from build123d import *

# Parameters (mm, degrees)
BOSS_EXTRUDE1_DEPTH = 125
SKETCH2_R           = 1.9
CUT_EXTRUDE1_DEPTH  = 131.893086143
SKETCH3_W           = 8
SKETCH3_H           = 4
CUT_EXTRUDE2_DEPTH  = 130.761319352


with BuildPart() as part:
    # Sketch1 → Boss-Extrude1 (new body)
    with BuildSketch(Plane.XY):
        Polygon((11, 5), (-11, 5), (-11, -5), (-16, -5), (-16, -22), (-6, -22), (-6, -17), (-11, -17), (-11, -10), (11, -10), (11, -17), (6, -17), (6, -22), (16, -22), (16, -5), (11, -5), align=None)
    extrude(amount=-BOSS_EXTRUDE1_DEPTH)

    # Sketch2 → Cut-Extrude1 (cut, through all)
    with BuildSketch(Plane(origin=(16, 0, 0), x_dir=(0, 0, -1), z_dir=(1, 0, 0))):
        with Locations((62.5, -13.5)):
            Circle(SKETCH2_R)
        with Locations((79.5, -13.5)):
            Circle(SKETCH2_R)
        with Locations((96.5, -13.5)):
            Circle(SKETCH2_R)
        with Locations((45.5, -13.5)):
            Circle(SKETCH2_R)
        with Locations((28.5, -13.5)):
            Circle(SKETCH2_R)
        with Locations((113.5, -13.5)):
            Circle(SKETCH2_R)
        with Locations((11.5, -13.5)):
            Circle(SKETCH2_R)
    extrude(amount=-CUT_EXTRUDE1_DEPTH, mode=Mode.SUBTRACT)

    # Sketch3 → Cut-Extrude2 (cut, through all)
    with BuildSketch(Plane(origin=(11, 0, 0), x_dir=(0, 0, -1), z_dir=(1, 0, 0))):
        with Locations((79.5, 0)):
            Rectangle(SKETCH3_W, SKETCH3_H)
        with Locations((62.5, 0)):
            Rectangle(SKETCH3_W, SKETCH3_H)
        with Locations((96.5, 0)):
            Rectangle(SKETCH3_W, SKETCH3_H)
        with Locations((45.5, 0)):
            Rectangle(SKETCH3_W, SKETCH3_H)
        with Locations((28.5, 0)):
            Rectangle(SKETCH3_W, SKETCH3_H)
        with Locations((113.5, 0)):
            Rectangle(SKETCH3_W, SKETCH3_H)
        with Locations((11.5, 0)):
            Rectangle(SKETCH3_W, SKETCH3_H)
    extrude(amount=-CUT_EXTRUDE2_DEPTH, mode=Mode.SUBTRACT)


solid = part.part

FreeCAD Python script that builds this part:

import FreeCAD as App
import Part
import Sketcher
Q = App.Units.Quantity

doc = App.newDocument("Part")
body = doc.addObject("PartDesign::Body", "Body")

# Sketch on XY plane
sketch1 = body.newObject("Sketcher::SketchObject", "Sketch")
sketch1.AttachmentSupport = (doc.getObject("XY_Plane"), [""])
sketch1.MapMode = "FlatFace"
sketch1.addGeometry([
    Part.LineSegment(App.Vector(11, 5, 0), App.Vector(-11, 5, 0)),  # 0
    Part.LineSegment(App.Vector(-11, 5, 0), App.Vector(-11, -5, 0)),  # 1
    Part.LineSegment(App.Vector(-11, -5, 0), App.Vector(-16, -5, 0)),  # 2
    Part.LineSegment(App.Vector(-16, -5, 0), App.Vector(-16, -22, 0)),  # 3
    Part.LineSegment(App.Vector(-16, -22, 0), App.Vector(-6, -22, 0)),  # 4
    Part.LineSegment(App.Vector(-6, -22, 0), App.Vector(-6, -17, 0)),  # 5
    Part.LineSegment(App.Vector(-6, -17, 0), App.Vector(-11, -17, 0)),  # 6
    Part.LineSegment(App.Vector(-11, -17, 0), App.Vector(-11, -10, 0)),  # 7
    Part.LineSegment(App.Vector(-11, -10, 0), App.Vector(11, -10, 0)),  # 8
    Part.LineSegment(App.Vector(11, -10, 0), App.Vector(11, -17, 0)),  # 9
    Part.LineSegment(App.Vector(11, -17, 0), App.Vector(6, -17, 0)),  # 10
    Part.LineSegment(App.Vector(6, -17, 0), App.Vector(6, -22, 0)),  # 11
    Part.LineSegment(App.Vector(6, -22, 0), App.Vector(16, -22, 0)),  # 12
    Part.LineSegment(App.Vector(16, -22, 0), App.Vector(16, -5, 0)),  # 13
    Part.LineSegment(App.Vector(16, -5, 0), App.Vector(11, -5, 0)),  # 14
    Part.LineSegment(App.Vector(11, -5, 0), App.Vector(11, 5, 0)),  # 15
], False)
sketch1.addConstraint([
    Sketcher.Constraint("Coincident", 0, 2, 1, 1),
    Sketcher.Constraint("Coincident", 1, 2, 2, 1),
    Sketcher.Constraint("Coincident", 2, 2, 3, 1),
    Sketcher.Constraint("Coincident", 3, 2, 4, 1),
    Sketcher.Constraint("Coincident", 4, 2, 5, 1),
    Sketcher.Constraint("Coincident", 5, 2, 6, 1),
    Sketcher.Constraint("Coincident", 6, 2, 7, 1),
    Sketcher.Constraint("Coincident", 7, 2, 8, 1),
    Sketcher.Constraint("Coincident", 8, 2, 9, 1),
    Sketcher.Constraint("Coincident", 9, 2, 10, 1),
    Sketcher.Constraint("Coincident", 10, 2, 11, 1),
    Sketcher.Constraint("Coincident", 11, 2, 12, 1),
    Sketcher.Constraint("Coincident", 12, 2, 13, 1),
    Sketcher.Constraint("Coincident", 13, 2, 14, 1),
    Sketcher.Constraint("Coincident", 14, 2, 15, 1),
    Sketcher.Constraint("Coincident", 15, 2, 0, 1),
    Sketcher.Constraint("Horizontal", 0),
    Sketcher.Constraint("Vertical", 1),
    Sketcher.Constraint("Horizontal", 2),
    Sketcher.Constraint("Vertical", 3),
    Sketcher.Constraint("Horizontal", 4),
    Sketcher.Constraint("Vertical", 5),
    Sketcher.Constraint("Horizontal", 6),
    Sketcher.Constraint("Vertical", 7),
    Sketcher.Constraint("Horizontal", 8),
    Sketcher.Constraint("Vertical", 9),
    Sketcher.Constraint("Horizontal", 10),
    Sketcher.Constraint("Vertical", 11),
    Sketcher.Constraint("Horizontal", 12),
    Sketcher.Constraint("Vertical", 13),
    Sketcher.Constraint("Horizontal", 14),
    Sketcher.Constraint("Vertical", 15),
    Sketcher.Constraint("Symmetric", 0, 2, 14, 2, -1, 1),
    Sketcher.Constraint("Symmetric", 6, 2, 9, 2, -2),
    Sketcher.Constraint("Symmetric", 4, 2, 11, 2, -2),
    Sketcher.Constraint("Symmetric", 2, 2, 13, 2, -2),
    Sketcher.Constraint("Vertical", 1, 2, 6, 2),
    Sketcher.Constraint("Equal", 2, 6),
    Sketcher.Constraint("Equal", 12, 1),
    Sketcher.Constraint("Equal", 14, 5),
    Sketcher.Constraint("DistanceX", 0, 2, 0, 1, Q("22 mm")),
    Sketcher.Constraint("DistanceX", 2, 2, 2, 1, Q("5 mm")),
    Sketcher.Constraint("DistanceY", 3, 2, 3, 1, Q("17 mm")),
    Sketcher.Constraint("DistanceY", 7, 1, 7, 2, Q("7 mm")),
])
pad1 = body.newObject("PartDesign::Pad", "Pad")
pad1.Profile = sketch1
pad1.Length = 125
pad1.Reversed = True

# Sketch on YZ plane
sketch2 = body.newObject("Sketcher::SketchObject", "Sketch001")
sketch2.AttachmentSupport = (doc.getObject("YZ_Plane"), [""])
sketch2.MapMode = "FlatFace"
sketch2.AttachmentOffset = App.Placement(App.Vector(0, 0, 16), App.Rotation())
sketch2.addGeometry([
    Part.Circle(App.Vector(-13.5, -62.5, 0), App.Vector(0, 0, 1), 1.9),  # 0
    Part.Circle(App.Vector(-13.5, -79.5, 0), App.Vector(0, 0, 1), 1.9),  # 1
    Part.Circle(App.Vector(-13.5, -96.5, 0), App.Vector(0, 0, 1), 1.9),  # 2
    Part.Circle(App.Vector(-13.5, -45.5, 0), App.Vector(0, 0, 1), 1.9),  # 3
    Part.Circle(App.Vector(-13.5, -28.5, 0), App.Vector(0, 0, 1), 1.9),  # 4
    Part.Circle(App.Vector(-13.5, -113.5, 0), App.Vector(0, 0, 1), 1.9),  # 5
    Part.Circle(App.Vector(-13.5, -11.5, 0), App.Vector(0, 0, 1), 1.9),  # 6
], False)
sketch2.addConstraint([
    Sketcher.Constraint("Equal", 0, 1),
    Sketcher.Constraint("Equal", 1, 2),
    Sketcher.Constraint("Equal", 2, 3),
    Sketcher.Constraint("Equal", 3, 4),
    Sketcher.Constraint("Equal", 4, 5),
    Sketcher.Constraint("Equal", 5, 6),
    Sketcher.Constraint("Vertical", 0, 3, 1, 3),
    Sketcher.Constraint("Vertical", 1, 3, 2, 3),
    Sketcher.Constraint("Vertical", 2, 3, 3, 3),
    Sketcher.Constraint("Vertical", 3, 3, 4, 3),
    Sketcher.Constraint("Vertical", 4, 3, 5, 3),
    Sketcher.Constraint("Vertical", 5, 3, 6, 3),
    Sketcher.Constraint("Diameter", 0, Q("3.8 mm")),
    Sketcher.Constraint("DistanceY", 1, 3, 0, 3, Q("17 mm")),
    Sketcher.Constraint("DistanceY", 2, 3, 1, 3, Q("17 mm")),
    Sketcher.Constraint("DistanceY", 0, 3, 3, 3, Q("17 mm")),
    Sketcher.Constraint("DistanceY", 3, 3, 4, 3, Q("17 mm")),
    Sketcher.Constraint("DistanceY", 5, 3, 2, 3, Q("17 mm")),
    Sketcher.Constraint("DistanceY", 4, 3, 6, 3, Q("17 mm")),
    Sketcher.Constraint("DistanceX", 0, 3, -1, 1, Q("13.5 mm")),
    Sketcher.Constraint("DistanceY", 0, 3, -1, 1, Q("62.5 mm")),
])
pocket1 = body.newObject("PartDesign::Pocket", "Pocket")
pocket1.Profile = sketch2
pocket1.Type = "ThroughAll"

# Sketch on YZ plane
sketch3 = body.newObject("Sketcher::SketchObject", "Sketch002")
sketch3.AttachmentSupport = (doc.getObject("YZ_Plane"), [""])
sketch3.MapMode = "FlatFace"
sketch3.AttachmentOffset = App.Placement(App.Vector(0, 0, 11), App.Rotation())
sketch3.addGeometry([
    Part.LineSegment(App.Vector(2, -75.5, 0), App.Vector(-2, -75.5, 0)),  # 0
    Part.LineSegment(App.Vector(-2, -75.5, 0), App.Vector(-2, -83.5, 0)),  # 1
    Part.LineSegment(App.Vector(-2, -83.5, 0), App.Vector(2, -83.5, 0)),  # 2
    Part.LineSegment(App.Vector(2, -83.5, 0), App.Vector(2, -75.5, 0)),  # 3
    Part.LineSegment(App.Vector(2, -58.5, 0), App.Vector(-2, -58.5, 0)),  # 4
    Part.LineSegment(App.Vector(-2, -58.5, 0), App.Vector(-2, -66.5, 0)),  # 5
    Part.LineSegment(App.Vector(-2, -66.5, 0), App.Vector(2, -66.5, 0)),  # 6
    Part.LineSegment(App.Vector(2, -66.5, 0), App.Vector(2, -58.5, 0)),  # 7
    Part.LineSegment(App.Vector(2, -92.5, 0), App.Vector(-2, -92.5, 0)),  # 8
    Part.LineSegment(App.Vector(-2, -92.5, 0), App.Vector(-2, -100.5, 0)),  # 9
    Part.LineSegment(App.Vector(-2, -100.5, 0), App.Vector(2, -100.5, 0)),  # 10
    Part.LineSegment(App.Vector(2, -100.5, 0), App.Vector(2, -92.5, 0)),  # 11
    Part.LineSegment(App.Vector(2, -41.5, 0), App.Vector(-2, -41.5, 0)),  # 12
    Part.LineSegment(App.Vector(-2, -41.5, 0), App.Vector(-2, -49.5, 0)),  # 13
    Part.LineSegment(App.Vector(-2, -49.5, 0), App.Vector(2, -49.5, 0)),  # 14
    Part.LineSegment(App.Vector(2, -49.5, 0), App.Vector(2, -41.5, 0)),  # 15
    Part.LineSegment(App.Vector(2, -24.5, 0), App.Vector(-2, -24.5, 0)),  # 16
    Part.LineSegment(App.Vector(-2, -24.5, 0), App.Vector(-2, -32.5, 0)),  # 17
    Part.LineSegment(App.Vector(-2, -32.5, 0), App.Vector(2, -32.5, 0)),  # 18
    Part.LineSegment(App.Vector(2, -32.5, 0), App.Vector(2, -24.5, 0)),  # 19
    Part.LineSegment(App.Vector(2, -109.5, 0), App.Vector(-2, -109.5, 0)),  # 20
    Part.LineSegment(App.Vector(-2, -109.5, 0), App.Vector(-2, -117.5, 0)),  # 21
    Part.LineSegment(App.Vector(-2, -117.5, 0), App.Vector(2, -117.5, 0)),  # 22
    Part.LineSegment(App.Vector(2, -117.5, 0), App.Vector(2, -109.5, 0)),  # 23
    Part.LineSegment(App.Vector(2, -7.5, 0), App.Vector(-2, -7.5, 0)),  # 24
    Part.LineSegment(App.Vector(-2, -7.5, 0), App.Vector(-2, -15.5, 0)),  # 25
    Part.LineSegment(App.Vector(-2, -15.5, 0), App.Vector(2, -15.5, 0)),  # 26
    Part.LineSegment(App.Vector(2, -15.5, 0), App.Vector(2, -7.5, 0)),  # 27
], False)
sketch3.addConstraint([
    Sketcher.Constraint("Coincident", 0, 2, 1, 1),
    Sketcher.Constraint("Coincident", 1, 2, 2, 1),
    Sketcher.Constraint("Coincident", 2, 2, 3, 1),
    Sketcher.Constraint("Coincident", 3, 2, 0, 1),
    Sketcher.Constraint("Coincident", 4, 2, 5, 1),
    Sketcher.Constraint("Coincident", 5, 2, 6, 1),
    Sketcher.Constraint("Coincident", 6, 2, 7, 1),
    Sketcher.Constraint("Coincident", 7, 2, 4, 1),
    Sketcher.Constraint("Coincident", 8, 2, 9, 1),
    Sketcher.Constraint("Coincident", 9, 2, 10, 1),
    Sketcher.Constraint("Coincident", 10, 2, 11, 1),
    Sketcher.Constraint("Coincident", 11, 2, 8, 1),
    Sketcher.Constraint("Coincident", 12, 2, 13, 1),
    Sketcher.Constraint("Coincident", 13, 2, 14, 1),
    Sketcher.Constraint("Coincident", 14, 2, 15, 1),
    Sketcher.Constraint("Coincident", 15, 2, 12, 1),
    Sketcher.Constraint("Coincident", 16, 2, 17, 1),
    Sketcher.Constraint("Coincident", 17, 2, 18, 1),
    Sketcher.Constraint("Coincident", 18, 2, 19, 1),
    Sketcher.Constraint("Coincident", 19, 2, 16, 1),
    Sketcher.Constraint("Coincident", 20, 2, 21, 1),
    Sketcher.Constraint("Coincident", 21, 2, 22, 1),
    Sketcher.Constraint("Coincident", 22, 2, 23, 1),
    Sketcher.Constraint("Coincident", 23, 2, 20, 1),
    Sketcher.Constraint("Coincident", 24, 2, 25, 1),
    Sketcher.Constraint("Coincident", 25, 2, 26, 1),
    Sketcher.Constraint("Coincident", 26, 2, 27, 1),
    Sketcher.Constraint("Coincident", 27, 2, 24, 1),
    Sketcher.Constraint("Horizontal", 0),
    Sketcher.Constraint("Vertical", 1),
    Sketcher.Constraint("Horizontal", 2),
    Sketcher.Constraint("Vertical", 3),
    Sketcher.Constraint("Horizontal", 4),
    Sketcher.Constraint("Vertical", 5),
    Sketcher.Constraint("Horizontal", 6),
    Sketcher.Constraint("Vertical", 7),
    Sketcher.Constraint("Horizontal", 8),
    Sketcher.Constraint("Vertical", 9),
    Sketcher.Constraint("Horizontal", 10),
    Sketcher.Constraint("Vertical", 11),
    Sketcher.Constraint("Horizontal", 12),
    Sketcher.Constraint("Vertical", 13),
    Sketcher.Constraint("Horizontal", 14),
    Sketcher.Constraint("Vertical", 15),
    Sketcher.Constraint("Horizontal", 16),
    Sketcher.Constraint("Vertical", 17),
    Sketcher.Constraint("Horizontal", 18),
    Sketcher.Constraint("Vertical", 19),
    Sketcher.Constraint("Horizontal", 20),
    Sketcher.Constraint("Vertical", 21),
    Sketcher.Constraint("Horizontal", 22),
    Sketcher.Constraint("Vertical", 23),
    Sketcher.Constraint("Horizontal", 24),
    Sketcher.Constraint("Vertical", 25),
    Sketcher.Constraint("Horizontal", 26),
    Sketcher.Constraint("Vertical", 27),
    Sketcher.Constraint("Vertical", 1, 2, 4, 2),
    Sketcher.Constraint("Vertical", 3, 2, 6, 2),
    Sketcher.Constraint("Vertical", 5, 2, 8, 2),
    Sketcher.Constraint("Vertical", 7, 2, 10, 2),
    Sketcher.Constraint("Vertical", 9, 2, 12, 2),
    Sketcher.Constraint("Vertical", 11, 2, 14, 2),
    Sketcher.Constraint("Vertical", 13, 2, 16, 2),
    Sketcher.Constraint("Vertical", 15, 2, 18, 2),
    Sketcher.Constraint("Vertical", 17, 2, 20, 2),
    Sketcher.Constraint("Vertical", 19, 2, 22, 2),
    Sketcher.Constraint("Vertical", 21, 2, 24, 2),
    Sketcher.Constraint("Vertical", 23, 2, 26, 2),
    Sketcher.Constraint("Equal", 3, 5),
    Sketcher.Constraint("Equal", 7, 9),
    Sketcher.Constraint("Equal", 11, 13),
    Sketcher.Constraint("Equal", 15, 17),
    Sketcher.Constraint("Equal", 19, 21),
    Sketcher.Constraint("Equal", 23, 25),
    Sketcher.Constraint("DistanceX", 0, 2, 0, 1, Q("4 mm")),
    Sketcher.Constraint("DistanceY", 1, 2, 1, 1, Q("8 mm")),
    Sketcher.Constraint("DistanceX", 0, 2, -1, 1, Q("2 mm")),
    Sketcher.Constraint("DistanceY", 0, 2, 4, 2, Q("17 mm")),
    Sketcher.Constraint("DistanceY", 8, 2, 1, 2, Q("9 mm")),
    Sketcher.Constraint("DistanceY", 4, 2, 12, 2, Q("17 mm")),
    Sketcher.Constraint("DistanceY", 12, 2, 16, 2, Q("17 mm")),
    Sketcher.Constraint("DistanceY", 20, 2, 9, 2, Q("9 mm")),
    Sketcher.Constraint("DistanceY", 16, 2, 24, 2, Q("17 mm")),
    Sketcher.Constraint("DistanceY", 0, 2, -1, 1, Q("75.5 mm")),
])
pocket2 = body.newObject("PartDesign::Pocket", "Pocket001")
pocket2.Profile = sketch3
pocket2.Type = "ThroughAll"

doc.recompute()
